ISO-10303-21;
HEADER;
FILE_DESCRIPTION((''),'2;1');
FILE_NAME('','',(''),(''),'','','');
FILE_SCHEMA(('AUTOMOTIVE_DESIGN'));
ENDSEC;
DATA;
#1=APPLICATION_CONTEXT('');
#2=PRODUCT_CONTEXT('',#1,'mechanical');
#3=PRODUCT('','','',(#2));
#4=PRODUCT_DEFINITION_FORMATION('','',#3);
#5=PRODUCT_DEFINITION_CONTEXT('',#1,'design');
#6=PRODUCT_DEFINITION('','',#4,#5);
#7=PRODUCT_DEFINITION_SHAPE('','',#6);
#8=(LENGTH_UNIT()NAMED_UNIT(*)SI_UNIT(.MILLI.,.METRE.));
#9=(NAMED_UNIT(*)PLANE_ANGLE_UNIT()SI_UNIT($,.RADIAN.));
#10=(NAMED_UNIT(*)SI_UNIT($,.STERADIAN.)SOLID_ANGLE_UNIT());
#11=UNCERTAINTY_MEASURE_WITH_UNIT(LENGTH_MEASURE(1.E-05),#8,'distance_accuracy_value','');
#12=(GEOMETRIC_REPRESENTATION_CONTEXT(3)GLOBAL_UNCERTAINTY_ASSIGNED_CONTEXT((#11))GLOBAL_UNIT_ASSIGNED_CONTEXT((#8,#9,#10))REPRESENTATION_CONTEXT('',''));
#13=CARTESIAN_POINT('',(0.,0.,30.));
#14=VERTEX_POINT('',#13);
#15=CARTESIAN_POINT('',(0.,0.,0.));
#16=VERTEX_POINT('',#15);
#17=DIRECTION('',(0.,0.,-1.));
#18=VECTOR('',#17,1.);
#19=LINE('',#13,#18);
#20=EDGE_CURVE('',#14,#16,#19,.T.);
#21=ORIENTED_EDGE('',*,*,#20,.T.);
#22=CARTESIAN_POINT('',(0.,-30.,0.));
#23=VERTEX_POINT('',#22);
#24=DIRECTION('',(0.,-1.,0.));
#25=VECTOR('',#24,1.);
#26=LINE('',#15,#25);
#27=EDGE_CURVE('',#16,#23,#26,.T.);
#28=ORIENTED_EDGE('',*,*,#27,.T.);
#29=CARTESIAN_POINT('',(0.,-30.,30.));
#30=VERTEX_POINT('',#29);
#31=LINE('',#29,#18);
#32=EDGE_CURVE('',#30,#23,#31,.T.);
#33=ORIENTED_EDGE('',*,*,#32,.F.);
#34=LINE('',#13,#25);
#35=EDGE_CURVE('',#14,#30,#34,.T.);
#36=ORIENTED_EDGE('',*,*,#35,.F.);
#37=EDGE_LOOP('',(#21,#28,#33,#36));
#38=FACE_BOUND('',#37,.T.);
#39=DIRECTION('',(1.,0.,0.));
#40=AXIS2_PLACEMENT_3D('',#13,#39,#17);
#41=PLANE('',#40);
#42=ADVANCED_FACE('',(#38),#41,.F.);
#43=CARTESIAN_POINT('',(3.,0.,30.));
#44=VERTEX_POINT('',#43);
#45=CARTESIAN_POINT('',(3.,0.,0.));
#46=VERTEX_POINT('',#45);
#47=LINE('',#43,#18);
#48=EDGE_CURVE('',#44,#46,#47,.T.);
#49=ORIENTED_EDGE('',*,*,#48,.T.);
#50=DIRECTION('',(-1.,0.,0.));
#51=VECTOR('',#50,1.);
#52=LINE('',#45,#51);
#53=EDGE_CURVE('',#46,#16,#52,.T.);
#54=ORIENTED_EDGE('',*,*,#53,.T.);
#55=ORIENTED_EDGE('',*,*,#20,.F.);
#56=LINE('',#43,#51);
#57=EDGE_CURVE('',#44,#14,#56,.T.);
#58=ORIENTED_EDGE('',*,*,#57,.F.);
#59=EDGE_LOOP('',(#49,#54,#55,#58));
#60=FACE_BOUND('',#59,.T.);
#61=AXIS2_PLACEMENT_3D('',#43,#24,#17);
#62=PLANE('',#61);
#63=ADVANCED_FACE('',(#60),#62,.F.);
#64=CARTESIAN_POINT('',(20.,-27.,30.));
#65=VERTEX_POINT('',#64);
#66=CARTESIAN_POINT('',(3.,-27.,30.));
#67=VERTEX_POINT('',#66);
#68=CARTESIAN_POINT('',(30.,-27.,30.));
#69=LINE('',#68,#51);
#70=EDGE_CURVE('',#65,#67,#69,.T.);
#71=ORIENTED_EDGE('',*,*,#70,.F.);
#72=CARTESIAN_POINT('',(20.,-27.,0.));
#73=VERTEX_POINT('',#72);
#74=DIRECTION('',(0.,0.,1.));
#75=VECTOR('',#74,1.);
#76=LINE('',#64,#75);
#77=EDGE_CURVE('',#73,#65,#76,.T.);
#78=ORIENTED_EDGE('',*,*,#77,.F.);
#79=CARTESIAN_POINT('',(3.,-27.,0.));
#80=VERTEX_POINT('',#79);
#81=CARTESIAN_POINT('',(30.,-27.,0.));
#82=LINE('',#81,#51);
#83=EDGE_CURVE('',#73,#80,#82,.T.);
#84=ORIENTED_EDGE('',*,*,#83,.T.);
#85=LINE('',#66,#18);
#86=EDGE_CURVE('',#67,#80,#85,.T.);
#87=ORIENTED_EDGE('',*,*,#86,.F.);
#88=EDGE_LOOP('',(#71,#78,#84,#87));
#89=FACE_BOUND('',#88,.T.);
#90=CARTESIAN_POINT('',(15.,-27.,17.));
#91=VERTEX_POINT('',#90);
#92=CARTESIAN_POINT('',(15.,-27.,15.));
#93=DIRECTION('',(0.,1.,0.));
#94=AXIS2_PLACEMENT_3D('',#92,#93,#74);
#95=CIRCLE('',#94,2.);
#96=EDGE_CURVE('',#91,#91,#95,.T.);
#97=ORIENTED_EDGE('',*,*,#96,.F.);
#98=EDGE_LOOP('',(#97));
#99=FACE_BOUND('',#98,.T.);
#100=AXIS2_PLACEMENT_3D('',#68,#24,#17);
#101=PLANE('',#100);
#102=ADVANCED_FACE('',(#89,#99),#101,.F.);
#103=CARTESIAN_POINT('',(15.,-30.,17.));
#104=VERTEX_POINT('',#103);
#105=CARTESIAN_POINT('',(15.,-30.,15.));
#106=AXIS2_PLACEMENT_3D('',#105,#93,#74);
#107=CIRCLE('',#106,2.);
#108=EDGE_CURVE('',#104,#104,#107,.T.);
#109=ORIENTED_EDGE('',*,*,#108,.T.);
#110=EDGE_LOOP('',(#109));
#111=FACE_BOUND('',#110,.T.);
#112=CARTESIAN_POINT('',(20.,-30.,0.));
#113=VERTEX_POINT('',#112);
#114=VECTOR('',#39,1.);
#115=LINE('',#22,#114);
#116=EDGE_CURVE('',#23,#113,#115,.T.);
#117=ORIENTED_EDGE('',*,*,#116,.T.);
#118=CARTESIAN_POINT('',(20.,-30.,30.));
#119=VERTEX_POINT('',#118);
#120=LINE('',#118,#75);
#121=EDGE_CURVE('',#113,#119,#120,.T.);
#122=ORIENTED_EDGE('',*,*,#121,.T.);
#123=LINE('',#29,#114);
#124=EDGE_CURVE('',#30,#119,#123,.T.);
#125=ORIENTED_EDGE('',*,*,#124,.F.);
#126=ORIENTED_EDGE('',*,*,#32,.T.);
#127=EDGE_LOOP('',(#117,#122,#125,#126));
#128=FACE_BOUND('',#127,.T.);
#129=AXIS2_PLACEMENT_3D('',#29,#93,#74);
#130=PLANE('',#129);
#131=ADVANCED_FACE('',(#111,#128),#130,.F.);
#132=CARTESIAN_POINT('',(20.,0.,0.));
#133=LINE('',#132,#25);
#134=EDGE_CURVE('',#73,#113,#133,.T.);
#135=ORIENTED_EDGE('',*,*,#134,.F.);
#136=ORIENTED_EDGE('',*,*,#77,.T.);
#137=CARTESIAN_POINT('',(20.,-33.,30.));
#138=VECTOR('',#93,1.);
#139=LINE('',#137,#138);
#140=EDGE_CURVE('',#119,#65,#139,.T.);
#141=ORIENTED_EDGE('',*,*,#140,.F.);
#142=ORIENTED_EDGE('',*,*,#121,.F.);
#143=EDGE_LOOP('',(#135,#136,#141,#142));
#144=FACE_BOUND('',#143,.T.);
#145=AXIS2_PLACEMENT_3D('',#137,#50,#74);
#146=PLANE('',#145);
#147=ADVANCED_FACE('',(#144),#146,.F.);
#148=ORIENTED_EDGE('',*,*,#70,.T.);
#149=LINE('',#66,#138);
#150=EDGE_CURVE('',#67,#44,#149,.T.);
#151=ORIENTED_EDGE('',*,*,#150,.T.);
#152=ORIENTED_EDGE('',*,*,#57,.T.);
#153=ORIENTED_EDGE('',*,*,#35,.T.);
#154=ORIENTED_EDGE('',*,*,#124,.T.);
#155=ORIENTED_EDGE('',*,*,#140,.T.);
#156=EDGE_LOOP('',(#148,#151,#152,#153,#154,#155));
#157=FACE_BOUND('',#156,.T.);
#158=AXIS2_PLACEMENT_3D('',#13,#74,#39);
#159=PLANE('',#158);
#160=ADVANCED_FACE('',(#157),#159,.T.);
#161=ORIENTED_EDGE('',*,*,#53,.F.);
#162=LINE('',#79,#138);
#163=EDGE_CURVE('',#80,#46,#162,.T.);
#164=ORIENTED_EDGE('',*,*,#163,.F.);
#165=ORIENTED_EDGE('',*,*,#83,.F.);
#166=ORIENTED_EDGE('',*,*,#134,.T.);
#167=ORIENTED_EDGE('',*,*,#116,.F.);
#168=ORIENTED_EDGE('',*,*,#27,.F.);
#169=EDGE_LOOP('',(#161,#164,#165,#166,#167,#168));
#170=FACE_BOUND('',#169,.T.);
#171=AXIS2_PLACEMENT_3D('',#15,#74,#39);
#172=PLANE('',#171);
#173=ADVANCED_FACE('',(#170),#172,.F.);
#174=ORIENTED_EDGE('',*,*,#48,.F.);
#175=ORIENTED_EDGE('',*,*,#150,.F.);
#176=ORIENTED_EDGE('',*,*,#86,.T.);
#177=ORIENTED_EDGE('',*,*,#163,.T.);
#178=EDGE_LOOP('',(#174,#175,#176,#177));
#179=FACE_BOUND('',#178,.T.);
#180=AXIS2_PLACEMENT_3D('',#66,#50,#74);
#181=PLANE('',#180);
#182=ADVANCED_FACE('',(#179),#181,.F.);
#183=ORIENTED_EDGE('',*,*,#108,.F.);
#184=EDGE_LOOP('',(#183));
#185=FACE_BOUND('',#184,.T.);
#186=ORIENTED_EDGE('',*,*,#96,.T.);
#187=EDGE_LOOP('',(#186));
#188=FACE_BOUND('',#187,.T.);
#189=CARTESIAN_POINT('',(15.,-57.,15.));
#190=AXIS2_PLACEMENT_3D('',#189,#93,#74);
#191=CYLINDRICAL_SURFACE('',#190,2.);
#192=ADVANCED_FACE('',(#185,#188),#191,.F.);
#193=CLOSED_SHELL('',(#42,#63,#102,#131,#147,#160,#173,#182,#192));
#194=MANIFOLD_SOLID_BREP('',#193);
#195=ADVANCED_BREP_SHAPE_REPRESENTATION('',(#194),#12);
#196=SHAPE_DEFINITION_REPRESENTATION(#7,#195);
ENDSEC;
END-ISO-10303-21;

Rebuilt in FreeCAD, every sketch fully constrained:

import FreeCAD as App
import Part
import Sketcher

V = App.Vector

doc = App.newDocument("Part")
body = doc.addObject("PartDesign::Body", "Body")

# Sketch on XY plane
sketch1 = body.newObject("Sketcher::SketchObject", "Sketch")
sketch1.AttachmentSupport = (doc.getObject("XY_Plane"), [""])
sketch1.MapMode = "FlatFace"
sketch1.addGeometry([
    Part.LineSegment(V(0, 0, 0), V(0, -30, 0)),  # 0
    Part.LineSegment(V(0, -30, 0), V(30, -30, 0)),  # 1
    Part.LineSegment(V(30, -30, 0), V(30, -27, 0)),  # 2
    Part.LineSegment(V(30, -27, 0), V(3, -27, 0)),  # 3
    Part.LineSegment(V(3, -27, 0), V(3, 0, 0)),  # 4
    Part.LineSegment(V(3, 0, 0), V(0, 0, 0)),  # 5
], False)
sketch1.addConstraint([
    Sketcher.Constraint("Coincident", 0, 2, 1, 1),
    Sketcher.Constraint("Coincident", 1, 2, 2, 1),
    Sketcher.Constraint("Coincident", 2, 2, 3, 1),
    Sketcher.Constraint("Coincident", 3, 2, 4, 1),
    Sketcher.Constraint("Coincident", 4, 2, 5, 1),
    Sketcher.Constraint("Coincident", 5, 2, 0, 1),
    Sketcher.Constraint("Vertical", 0),
    Sketcher.Constraint("Horizontal", 1),
    Sketcher.Constraint("Vertical", 2),
    Sketcher.Constraint("Horizontal", 3),
    Sketcher.Constraint("Vertical", 4),
    Sketcher.Constraint("Horizontal", 5),
    Sketcher.Constraint("Coincident", 5, 2, -1, 1),
    Sketcher.Constraint("Equal", 1, 0),
    Sketcher.Constraint("Equal", 5, 2),
    Sketcher.Constraint("DistanceX", 1, 1, 1, 2, 30.0),
    Sketcher.Constraint("DistanceX", 3, 2, 3, 1, 27.0),
])
pad1 = body.newObject("PartDesign::Pad", "Pad")
pad1.Profile = sketch1
pad1.Length = 30

# Sketch on XZ plane
sketch2 = body.newObject("Sketcher::SketchObject", "Sketch001")
sketch2.AttachmentSupport = (doc.getObject("XZ_Plane"), [""])
sketch2.MapMode = "FlatFace"
sketch2.AttachmentOffset = App.Placement(V(0, 0, 27), App.Rotation())
sketch2.addGeometry(Part.Circle(V(15, 15, 0), V(0, 0, 1), 2), False)
sketch2.addConstraint([
    Sketcher.Constraint("Diameter", 0, 4.0),
    Sketcher.Constraint("DistanceX", -1, 1, 0, 3, 15.0),
    Sketcher.Constraint("DistanceY", -1, 1, 0, 3, 15.0),
])
pocket1 = body.newObject("PartDesign::Pocket", "Pocket")
pocket1.Profile = sketch2
pocket1.Length = 30
pocket1.Reversed = True

# Sketch on XZ plane
sketch3 = body.newObject("Sketcher::SketchObject", "Sketch002")
sketch3.AttachmentSupport = (doc.getObject("XZ_Plane"), [""])
sketch3.MapMode = "FlatFace"
sketch3.AttachmentOffset = App.Placement(V(0, 0, 27), App.Rotation())
sketch3.addGeometry([
    Part.LineSegment(V(30, 30, 0), V(30, 0, 0)),
    Part.LineSegment(V(30, 0, 0), V(20, 0, 0)),
    Part.LineSegment(V(20, 0, 0), V(20, 30, 0)),
    Part.LineSegment(V(20, 30, 0), V(30, 30, 0)),
], False)
sketch3.addConstraint([
    Sketcher.Constraint("Coincident", 0, 2, 1, 1),
    Sketcher.Constraint("Coincident", 1, 2, 2, 1),
    Sketcher.Constraint("Coincident", 2, 2, 3, 1),
    Sketcher.Constraint("Coincident", 3, 2, 0, 1),
    Sketcher.Constraint("Vertical", 0),
    Sketcher.Constraint("Horizontal", 1),
    Sketcher.Constraint("Vertical", 2),
    Sketcher.Constraint("Horizontal", 3),
    Sketcher.Constraint("PointOnObject", 0, 2, -1),
    Sketcher.Constraint("DistanceX", 1, 2, 1, 1, 10.0),
    Sketcher.Constraint("DistanceY", 0, 2, 0, 1, 30.0),
    Sketcher.Constraint("DistanceX", -1, 1, 0, 2, 30.0),
])
pocket2 = body.newObject("PartDesign::Pocket", "Pocket001")
pocket2.Profile = sketch3
pocket2.Length = 6
pocket2.Reversed = True

doc.recompute()
